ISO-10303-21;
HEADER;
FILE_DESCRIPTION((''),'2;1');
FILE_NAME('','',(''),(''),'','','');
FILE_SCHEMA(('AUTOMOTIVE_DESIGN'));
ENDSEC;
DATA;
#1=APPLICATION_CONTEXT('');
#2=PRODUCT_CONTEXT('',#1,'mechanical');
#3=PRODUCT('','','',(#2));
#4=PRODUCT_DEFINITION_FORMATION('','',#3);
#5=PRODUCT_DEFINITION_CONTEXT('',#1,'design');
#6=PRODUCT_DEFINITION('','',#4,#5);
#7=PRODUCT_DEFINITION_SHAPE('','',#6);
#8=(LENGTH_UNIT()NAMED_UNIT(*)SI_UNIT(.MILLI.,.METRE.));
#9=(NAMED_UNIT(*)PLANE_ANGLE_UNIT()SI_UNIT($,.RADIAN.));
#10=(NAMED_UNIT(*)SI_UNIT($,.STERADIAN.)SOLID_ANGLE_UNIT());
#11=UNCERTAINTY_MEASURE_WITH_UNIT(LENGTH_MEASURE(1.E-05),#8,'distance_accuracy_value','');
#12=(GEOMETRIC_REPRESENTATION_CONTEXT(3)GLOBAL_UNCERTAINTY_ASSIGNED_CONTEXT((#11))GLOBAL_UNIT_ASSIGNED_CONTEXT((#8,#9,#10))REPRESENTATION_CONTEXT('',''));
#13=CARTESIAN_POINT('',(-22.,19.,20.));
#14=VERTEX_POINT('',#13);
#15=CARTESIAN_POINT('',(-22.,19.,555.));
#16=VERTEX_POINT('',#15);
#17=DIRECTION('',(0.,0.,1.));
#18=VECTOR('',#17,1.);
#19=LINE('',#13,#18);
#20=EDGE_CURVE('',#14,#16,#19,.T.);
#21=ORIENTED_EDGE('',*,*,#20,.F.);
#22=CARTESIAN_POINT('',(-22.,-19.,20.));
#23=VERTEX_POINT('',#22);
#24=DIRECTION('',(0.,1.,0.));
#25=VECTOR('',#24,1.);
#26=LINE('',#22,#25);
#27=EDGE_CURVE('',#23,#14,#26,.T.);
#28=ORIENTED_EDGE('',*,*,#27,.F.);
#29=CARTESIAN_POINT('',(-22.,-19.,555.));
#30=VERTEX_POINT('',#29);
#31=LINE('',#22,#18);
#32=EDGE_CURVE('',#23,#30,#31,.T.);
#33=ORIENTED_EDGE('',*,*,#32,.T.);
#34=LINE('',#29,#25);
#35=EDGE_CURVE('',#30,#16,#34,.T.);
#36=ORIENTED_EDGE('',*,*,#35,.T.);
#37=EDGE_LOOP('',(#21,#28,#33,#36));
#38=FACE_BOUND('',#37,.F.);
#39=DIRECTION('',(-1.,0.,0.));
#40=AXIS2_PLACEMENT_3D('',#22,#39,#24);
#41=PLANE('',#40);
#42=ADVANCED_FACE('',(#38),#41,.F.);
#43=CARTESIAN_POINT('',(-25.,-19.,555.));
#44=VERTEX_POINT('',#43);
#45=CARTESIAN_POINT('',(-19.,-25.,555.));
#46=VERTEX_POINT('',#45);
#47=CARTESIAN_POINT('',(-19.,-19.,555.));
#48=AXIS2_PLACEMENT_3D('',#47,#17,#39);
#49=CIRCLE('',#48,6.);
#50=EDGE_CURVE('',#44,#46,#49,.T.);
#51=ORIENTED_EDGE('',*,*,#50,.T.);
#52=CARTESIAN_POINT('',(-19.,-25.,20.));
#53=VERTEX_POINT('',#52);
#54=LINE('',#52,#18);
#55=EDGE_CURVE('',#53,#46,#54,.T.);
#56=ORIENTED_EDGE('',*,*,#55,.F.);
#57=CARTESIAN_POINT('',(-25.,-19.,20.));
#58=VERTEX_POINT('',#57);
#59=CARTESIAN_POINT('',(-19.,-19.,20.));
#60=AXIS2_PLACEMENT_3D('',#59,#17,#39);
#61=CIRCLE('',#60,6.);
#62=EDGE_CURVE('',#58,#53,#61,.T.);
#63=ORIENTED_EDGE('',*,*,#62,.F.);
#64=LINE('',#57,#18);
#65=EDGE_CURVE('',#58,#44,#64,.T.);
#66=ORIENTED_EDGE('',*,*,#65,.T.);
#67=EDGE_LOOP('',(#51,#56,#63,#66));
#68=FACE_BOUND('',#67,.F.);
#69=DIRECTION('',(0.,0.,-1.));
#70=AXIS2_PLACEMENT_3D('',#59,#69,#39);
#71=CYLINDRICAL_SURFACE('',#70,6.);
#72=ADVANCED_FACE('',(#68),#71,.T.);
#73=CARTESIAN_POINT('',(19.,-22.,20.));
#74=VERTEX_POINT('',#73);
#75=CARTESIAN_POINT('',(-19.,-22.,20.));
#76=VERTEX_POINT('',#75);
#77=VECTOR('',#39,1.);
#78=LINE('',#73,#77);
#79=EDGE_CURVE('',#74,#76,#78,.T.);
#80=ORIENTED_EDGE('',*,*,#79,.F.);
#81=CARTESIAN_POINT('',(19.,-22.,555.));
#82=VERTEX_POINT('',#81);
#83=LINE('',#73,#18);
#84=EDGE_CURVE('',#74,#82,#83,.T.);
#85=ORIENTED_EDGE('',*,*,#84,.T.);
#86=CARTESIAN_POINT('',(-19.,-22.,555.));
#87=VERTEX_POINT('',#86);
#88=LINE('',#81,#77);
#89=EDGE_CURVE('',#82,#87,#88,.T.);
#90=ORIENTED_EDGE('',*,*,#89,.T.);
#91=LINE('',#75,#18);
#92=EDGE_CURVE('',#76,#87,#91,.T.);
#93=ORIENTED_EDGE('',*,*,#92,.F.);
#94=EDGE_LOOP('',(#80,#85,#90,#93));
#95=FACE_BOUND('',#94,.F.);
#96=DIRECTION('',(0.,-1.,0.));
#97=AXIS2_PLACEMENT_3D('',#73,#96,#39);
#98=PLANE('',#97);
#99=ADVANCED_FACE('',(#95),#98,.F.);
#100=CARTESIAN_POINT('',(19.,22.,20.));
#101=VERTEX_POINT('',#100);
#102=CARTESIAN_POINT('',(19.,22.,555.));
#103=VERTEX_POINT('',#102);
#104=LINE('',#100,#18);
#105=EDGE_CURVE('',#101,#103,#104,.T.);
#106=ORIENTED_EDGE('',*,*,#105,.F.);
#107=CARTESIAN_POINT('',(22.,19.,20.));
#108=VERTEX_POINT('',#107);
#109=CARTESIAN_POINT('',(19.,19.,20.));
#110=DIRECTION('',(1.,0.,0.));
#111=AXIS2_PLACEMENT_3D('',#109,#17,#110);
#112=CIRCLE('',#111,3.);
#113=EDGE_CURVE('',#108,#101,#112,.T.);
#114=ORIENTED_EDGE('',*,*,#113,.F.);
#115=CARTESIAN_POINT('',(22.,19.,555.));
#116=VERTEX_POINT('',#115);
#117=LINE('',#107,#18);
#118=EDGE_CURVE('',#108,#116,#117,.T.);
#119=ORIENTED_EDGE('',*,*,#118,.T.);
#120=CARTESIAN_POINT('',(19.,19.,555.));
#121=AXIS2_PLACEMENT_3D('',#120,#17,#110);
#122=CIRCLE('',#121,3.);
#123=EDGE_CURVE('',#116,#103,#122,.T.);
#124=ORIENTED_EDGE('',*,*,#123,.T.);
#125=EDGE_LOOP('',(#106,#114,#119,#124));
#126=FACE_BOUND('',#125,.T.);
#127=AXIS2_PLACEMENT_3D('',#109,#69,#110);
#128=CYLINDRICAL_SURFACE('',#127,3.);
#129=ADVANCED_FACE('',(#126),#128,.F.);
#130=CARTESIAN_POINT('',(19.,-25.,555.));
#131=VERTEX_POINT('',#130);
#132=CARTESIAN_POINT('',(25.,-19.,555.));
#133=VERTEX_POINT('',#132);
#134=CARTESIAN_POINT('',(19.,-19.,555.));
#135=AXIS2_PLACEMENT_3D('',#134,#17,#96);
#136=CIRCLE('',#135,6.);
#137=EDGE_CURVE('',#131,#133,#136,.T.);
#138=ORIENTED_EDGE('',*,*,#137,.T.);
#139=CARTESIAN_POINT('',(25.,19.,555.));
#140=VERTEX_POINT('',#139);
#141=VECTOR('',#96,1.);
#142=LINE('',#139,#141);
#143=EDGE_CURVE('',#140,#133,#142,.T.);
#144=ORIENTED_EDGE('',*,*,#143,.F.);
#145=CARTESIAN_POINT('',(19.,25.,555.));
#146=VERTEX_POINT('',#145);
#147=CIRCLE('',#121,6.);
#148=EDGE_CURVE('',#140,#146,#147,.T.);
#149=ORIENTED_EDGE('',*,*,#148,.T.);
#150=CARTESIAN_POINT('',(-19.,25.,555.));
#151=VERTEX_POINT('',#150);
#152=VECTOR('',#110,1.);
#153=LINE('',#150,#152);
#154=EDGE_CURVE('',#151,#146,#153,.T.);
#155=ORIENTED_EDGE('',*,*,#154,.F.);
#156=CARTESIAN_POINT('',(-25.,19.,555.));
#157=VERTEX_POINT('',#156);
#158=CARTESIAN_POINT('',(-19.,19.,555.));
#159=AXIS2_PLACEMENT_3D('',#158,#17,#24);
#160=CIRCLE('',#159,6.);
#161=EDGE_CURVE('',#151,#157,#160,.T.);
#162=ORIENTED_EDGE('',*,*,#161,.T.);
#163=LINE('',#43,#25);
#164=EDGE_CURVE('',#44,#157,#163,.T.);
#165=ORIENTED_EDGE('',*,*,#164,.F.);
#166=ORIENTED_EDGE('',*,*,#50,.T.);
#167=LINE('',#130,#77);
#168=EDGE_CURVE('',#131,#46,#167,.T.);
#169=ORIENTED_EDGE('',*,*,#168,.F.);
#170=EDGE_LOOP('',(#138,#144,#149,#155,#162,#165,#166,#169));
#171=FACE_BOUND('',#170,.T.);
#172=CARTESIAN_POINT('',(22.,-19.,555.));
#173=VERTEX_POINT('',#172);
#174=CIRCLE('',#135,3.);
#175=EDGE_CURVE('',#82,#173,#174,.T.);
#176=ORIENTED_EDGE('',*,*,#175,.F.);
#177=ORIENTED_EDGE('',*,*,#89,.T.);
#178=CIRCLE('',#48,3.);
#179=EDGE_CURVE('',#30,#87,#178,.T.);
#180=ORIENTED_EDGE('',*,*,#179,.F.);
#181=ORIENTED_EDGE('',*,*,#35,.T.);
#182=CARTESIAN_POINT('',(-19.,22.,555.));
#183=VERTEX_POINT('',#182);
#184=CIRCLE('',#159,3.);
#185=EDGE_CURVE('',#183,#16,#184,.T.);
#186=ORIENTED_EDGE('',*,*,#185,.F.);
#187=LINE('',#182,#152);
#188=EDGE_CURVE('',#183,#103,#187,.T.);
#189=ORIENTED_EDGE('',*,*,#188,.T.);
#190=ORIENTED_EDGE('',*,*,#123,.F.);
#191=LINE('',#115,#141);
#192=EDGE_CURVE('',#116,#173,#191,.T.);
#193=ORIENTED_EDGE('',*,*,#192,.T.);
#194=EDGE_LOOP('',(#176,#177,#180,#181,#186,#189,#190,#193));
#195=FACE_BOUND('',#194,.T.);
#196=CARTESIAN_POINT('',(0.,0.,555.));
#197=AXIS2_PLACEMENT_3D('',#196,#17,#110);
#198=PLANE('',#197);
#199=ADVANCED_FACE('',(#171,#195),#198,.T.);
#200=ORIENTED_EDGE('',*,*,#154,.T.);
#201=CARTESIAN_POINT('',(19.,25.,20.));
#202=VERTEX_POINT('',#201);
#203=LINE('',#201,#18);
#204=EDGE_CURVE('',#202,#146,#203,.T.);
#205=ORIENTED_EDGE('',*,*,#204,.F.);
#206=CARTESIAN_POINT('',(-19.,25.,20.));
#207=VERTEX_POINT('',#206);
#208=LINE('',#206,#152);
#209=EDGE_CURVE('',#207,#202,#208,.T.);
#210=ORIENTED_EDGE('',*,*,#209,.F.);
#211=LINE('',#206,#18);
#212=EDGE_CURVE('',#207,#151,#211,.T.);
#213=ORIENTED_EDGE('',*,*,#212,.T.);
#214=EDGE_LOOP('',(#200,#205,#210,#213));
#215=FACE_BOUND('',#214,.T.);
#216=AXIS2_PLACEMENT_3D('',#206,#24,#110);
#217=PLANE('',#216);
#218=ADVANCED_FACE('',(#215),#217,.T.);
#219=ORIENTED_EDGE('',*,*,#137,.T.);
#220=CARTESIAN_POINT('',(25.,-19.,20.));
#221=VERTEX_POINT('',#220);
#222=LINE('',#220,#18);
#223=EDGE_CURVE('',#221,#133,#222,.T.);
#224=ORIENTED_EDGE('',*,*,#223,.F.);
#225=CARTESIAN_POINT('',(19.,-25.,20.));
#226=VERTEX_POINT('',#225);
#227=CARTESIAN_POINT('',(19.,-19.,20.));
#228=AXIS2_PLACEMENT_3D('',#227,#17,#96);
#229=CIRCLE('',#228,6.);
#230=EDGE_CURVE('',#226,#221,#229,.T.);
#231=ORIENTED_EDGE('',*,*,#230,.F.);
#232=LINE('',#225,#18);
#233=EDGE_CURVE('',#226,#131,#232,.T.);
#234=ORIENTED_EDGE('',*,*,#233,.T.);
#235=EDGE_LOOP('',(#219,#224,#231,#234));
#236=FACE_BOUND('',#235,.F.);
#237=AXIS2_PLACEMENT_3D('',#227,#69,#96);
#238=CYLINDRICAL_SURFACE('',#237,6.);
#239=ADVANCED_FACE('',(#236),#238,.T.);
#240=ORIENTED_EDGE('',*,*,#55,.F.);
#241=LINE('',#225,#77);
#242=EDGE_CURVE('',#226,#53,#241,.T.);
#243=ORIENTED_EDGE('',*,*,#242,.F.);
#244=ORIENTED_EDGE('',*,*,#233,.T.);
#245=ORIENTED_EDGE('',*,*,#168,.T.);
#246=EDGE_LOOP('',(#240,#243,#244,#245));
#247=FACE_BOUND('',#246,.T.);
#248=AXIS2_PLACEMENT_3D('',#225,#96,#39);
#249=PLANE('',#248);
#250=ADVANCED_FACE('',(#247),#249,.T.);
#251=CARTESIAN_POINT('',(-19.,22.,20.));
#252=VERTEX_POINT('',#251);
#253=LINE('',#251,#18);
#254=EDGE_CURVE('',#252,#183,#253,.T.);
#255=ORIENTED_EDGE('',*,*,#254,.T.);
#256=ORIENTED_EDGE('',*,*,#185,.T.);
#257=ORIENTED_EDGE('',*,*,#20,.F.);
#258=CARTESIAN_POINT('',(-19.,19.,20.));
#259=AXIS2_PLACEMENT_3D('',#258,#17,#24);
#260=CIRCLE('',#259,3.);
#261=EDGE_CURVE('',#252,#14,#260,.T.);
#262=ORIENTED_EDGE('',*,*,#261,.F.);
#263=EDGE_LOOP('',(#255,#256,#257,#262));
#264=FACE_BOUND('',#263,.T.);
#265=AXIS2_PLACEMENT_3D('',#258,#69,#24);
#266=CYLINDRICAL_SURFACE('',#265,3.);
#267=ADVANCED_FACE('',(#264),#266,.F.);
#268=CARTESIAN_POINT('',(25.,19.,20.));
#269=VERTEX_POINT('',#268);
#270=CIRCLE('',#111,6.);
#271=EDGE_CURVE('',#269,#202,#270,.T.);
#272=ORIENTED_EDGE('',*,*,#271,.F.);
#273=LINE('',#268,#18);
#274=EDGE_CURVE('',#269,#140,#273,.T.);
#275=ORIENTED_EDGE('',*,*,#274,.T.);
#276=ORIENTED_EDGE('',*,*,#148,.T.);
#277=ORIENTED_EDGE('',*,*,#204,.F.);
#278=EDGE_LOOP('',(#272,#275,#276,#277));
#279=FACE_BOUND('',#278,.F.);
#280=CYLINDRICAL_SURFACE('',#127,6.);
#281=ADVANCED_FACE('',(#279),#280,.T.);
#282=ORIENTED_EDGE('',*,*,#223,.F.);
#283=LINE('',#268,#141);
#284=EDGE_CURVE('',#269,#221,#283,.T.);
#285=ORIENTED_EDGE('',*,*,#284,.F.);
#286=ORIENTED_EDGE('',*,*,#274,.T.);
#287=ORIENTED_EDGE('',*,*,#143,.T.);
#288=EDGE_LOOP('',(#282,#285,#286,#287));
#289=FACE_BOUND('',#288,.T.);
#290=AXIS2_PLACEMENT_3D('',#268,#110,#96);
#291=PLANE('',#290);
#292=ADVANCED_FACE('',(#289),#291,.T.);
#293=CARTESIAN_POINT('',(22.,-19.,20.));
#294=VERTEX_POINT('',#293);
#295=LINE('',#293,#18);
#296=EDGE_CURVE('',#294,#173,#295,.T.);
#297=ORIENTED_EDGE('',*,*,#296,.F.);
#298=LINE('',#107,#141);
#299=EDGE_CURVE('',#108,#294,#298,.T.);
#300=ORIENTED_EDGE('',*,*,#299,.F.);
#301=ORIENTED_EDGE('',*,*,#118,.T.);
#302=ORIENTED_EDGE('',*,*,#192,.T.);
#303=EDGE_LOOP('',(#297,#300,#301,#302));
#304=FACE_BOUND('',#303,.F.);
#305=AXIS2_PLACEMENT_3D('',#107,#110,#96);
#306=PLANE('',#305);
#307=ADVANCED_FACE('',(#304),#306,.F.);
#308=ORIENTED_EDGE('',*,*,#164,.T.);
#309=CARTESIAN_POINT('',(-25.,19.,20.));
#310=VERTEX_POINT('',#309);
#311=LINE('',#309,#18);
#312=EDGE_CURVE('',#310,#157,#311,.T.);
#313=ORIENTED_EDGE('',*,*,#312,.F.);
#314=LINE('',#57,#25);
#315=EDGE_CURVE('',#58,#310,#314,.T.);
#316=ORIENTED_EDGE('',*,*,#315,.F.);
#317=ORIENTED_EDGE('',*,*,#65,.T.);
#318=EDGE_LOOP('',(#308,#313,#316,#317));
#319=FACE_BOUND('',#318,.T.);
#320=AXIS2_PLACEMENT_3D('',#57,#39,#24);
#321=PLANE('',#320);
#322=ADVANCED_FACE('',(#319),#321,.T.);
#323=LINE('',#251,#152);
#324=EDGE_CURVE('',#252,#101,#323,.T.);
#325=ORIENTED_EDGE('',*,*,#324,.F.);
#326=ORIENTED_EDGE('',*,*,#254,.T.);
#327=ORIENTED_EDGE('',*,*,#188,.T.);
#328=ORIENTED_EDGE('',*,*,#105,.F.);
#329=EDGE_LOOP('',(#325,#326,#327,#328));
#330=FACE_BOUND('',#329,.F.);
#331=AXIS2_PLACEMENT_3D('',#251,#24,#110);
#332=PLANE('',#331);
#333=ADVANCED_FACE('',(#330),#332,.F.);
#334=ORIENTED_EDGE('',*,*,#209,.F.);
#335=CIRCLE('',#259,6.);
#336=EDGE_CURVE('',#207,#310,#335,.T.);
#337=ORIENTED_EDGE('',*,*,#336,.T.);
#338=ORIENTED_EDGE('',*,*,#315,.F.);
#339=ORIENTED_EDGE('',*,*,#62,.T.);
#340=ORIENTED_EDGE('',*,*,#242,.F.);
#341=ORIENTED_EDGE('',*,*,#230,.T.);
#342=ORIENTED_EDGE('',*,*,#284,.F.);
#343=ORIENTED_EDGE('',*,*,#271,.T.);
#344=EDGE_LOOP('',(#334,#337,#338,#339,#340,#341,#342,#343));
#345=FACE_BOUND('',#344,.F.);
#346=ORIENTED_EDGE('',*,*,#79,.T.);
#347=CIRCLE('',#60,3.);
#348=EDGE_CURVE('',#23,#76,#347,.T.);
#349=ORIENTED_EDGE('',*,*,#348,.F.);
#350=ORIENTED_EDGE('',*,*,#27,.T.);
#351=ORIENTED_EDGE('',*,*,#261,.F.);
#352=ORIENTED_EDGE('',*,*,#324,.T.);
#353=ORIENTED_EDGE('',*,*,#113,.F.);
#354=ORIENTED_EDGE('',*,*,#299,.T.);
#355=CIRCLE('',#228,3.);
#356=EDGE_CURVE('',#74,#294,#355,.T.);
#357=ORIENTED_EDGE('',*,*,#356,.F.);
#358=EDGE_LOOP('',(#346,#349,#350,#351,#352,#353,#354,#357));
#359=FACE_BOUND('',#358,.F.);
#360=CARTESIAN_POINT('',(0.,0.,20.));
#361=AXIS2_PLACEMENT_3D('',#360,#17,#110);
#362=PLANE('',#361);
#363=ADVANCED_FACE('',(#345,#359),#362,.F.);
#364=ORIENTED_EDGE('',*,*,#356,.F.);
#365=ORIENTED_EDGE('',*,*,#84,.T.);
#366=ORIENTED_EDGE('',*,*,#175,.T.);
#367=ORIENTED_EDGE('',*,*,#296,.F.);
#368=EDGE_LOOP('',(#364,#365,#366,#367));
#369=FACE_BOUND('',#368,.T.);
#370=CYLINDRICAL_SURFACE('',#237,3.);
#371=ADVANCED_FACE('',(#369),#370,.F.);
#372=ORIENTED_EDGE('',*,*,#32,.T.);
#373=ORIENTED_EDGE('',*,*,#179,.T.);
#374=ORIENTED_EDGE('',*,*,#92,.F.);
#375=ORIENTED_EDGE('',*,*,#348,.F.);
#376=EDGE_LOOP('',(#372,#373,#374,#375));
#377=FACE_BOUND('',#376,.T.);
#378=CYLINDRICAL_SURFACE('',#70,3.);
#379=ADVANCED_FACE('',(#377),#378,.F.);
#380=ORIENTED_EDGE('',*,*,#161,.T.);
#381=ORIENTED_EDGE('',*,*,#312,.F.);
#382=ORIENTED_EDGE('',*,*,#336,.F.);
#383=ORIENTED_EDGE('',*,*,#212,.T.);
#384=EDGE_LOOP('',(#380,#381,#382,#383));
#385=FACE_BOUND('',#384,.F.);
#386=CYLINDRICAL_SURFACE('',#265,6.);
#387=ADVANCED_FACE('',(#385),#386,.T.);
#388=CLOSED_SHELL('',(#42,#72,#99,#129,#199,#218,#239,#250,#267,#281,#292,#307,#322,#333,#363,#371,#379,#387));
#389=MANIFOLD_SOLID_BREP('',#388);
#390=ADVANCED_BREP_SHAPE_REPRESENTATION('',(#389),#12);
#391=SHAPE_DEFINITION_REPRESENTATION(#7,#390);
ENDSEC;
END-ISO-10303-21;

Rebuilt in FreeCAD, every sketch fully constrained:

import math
import FreeCAD as App
import Part
import Sketcher

doc = App.newDocument("Part")
params = doc.addObject("Spreadsheet::Sheet", "Params")
for row, (alias, value) in enumerate([
    ("sketch1_radius", "6 mm"),
    ("sketch1_radius2", "3 mm"),
    ("pad1_length", "535 mm"),
], start=1):
    params.set(f"A{row}", alias)
    params.set(f"B{row}", "=" + value)
    params.setAlias(f"B{row}", alias)

body = doc.addObject("PartDesign::Body", "Body")

# Sketch on XY plane
sketch1 = body.newObject("Sketcher::SketchObject", "Sketch")
sketch1.AttachmentSupport = (doc.getObject("XY_Plane"), [""])
sketch1.MapMode = "FlatFace"
sketch1.AttachmentOffset = App.Placement(App.Vector(0, 0, 20), App.Rotation())
sketch1.addGeometry([
    Part.LineSegment(App.Vector(-25, 19, 0), App.Vector(-25, -19, 0)),  # 0
    Part.ArcOfCircle(Part.Circle(App.Vector(-19, -19, 0), App.Vector(0, 0, 1), 6), math.radians(180), math.radians(270)),  # 1
    Part.LineSegment(App.Vector(-19, -25, 0), App.Vector(19, -25, 0)),  # 2
    Part.ArcOfCircle(Part.Circle(App.Vector(19, -19, 0), App.Vector(0, 0, 1), 6), math.radians(-90), math.radians(0)),  # 3
    Part.LineSegment(App.Vector(25, -19, 0), App.Vector(25, 19, 0)),  # 4
    Part.ArcOfCircle(Part.Circle(App.Vector(19, 19, 0), App.Vector(0, 0, 1), 6), math.radians(0), math.radians(90)),  # 5
    Part.LineSegment(App.Vector(19, 25, 0), App.Vector(-19, 25, 0)),  # 6
    Part.ArcOfCircle(Part.Circle(App.Vector(-19, 19, 0), App.Vector(0, 0, 1), 6), math.radians(90), math.radians(180)),  # 7
    Part.ArcOfCircle(Part.Circle(App.Vector(-19, 19, 0), App.Vector(0, 0, 1), 3), math.radians(90), math.radians(180)),  # 8
    Part.LineSegment(App.Vector(-19, 22, 0), App.Vector(19, 22, 0)),  # 9
    Part.ArcOfCircle(Part.Circle(App.Vector(19, 19, 0), App.Vector(0, 0, 1), 3), math.radians(0), math.radians(90)),  # 10
    Part.LineSegment(App.Vector(22, 19, 0), App.Vector(22, -19, 0)),  # 11
    Part.ArcOfCircle(Part.Circle(App.Vector(19, -19, 0), App.Vector(0, 0, 1), 3), math.radians(-90), math.radians(0)),  # 12
    Part.LineSegment(App.Vector(19, -22, 0), App.Vector(-19, -22, 0)),  # 13
    Part.ArcOfCircle(Part.Circle(App.Vector(-19, -19, 0), App.Vector(0, 0, 1), 3), math.radians(180), math.radians(270)),  # 14
    Part.LineSegment(App.Vector(-22, -19, 0), App.Vector(-22, 19, 0)),  # 15
], False)
sketch1.addConstraint([
    Sketcher.Constraint("Tangent", 0, 2, 1, 1),
    Sketcher.Constraint("Tangent", 1, 2, 2, 1),
    Sketcher.Constraint("Tangent", 2, 2, 3, 1),
    Sketcher.Constraint("Tangent", 3, 2, 4, 1),
    Sketcher.Constraint("Tangent", 4, 2, 5, 1),
    Sketcher.Constraint("Tangent", 5, 2, 6, 1),
    Sketcher.Constraint("Tangent", 6, 2, 7, 1),
    Sketcher.Constraint("Tangent", 7, 2, 0, 1),
    Sketcher.Constraint("Tangent", 8, 1, 9, 1),
    Sketcher.Constraint("Tangent", 9, 2, 10, 2),
    Sketcher.Constraint("Tangent", 10, 1, 11, 1),
    Sketcher.Constraint("Tangent", 11, 2, 12, 2),
    Sketcher.Constraint("Tangent", 12, 1, 13, 1),
    Sketcher.Constraint("Tangent", 13, 2, 14, 2),
    Sketcher.Constraint("Tangent", 14, 1, 15, 1),
    Sketcher.Constraint("Tangent", 15, 2, 8, 2),
    Sketcher.Constraint("Vertical", 0),
    Sketcher.Constraint("Horizontal", 2),
    Sketcher.Constraint("Vertical", 4),
    Sketcher.Constraint("Horizontal", 6),
    Sketcher.Constraint("Horizontal", 9),
    Sketcher.Constraint("Vertical", 11),
    Sketcher.Constraint("Horizontal", 13),
    Sketcher.Constraint("Vertical", 15),
    Sketcher.Constraint("Coincident", 8, 3, 7, 3),
    Sketcher.Constraint("Coincident", 10, 3, 5, 3),
    Sketcher.Constraint("Coincident", 12, 3, 3, 3),
    Sketcher.Constraint("Equal", 1, 3),
    Sketcher.Constraint("Equal", 3, 5),
    Sketcher.Constraint("Equal", 5, 7),
    Sketcher.Constraint("Equal", 12, 14),
    Sketcher.Constraint("Symmetric", 1, 3, 5, 3, -1, 1),
    Sketcher.Constraint("Equal", 13, 0),
    Sketcher.Constraint("Radius", 1, 6.0),
    Sketcher.Constraint("Radius", 8, 3.0),
    Sketcher.Constraint("DistanceX", 0, 2, -1, 1, 25.0),
])
sketch1.setExpression("Constraints[33]", "Params.sketch1_radius")
sketch1.setExpression("Constraints[34]", "Params.sketch1_radius2")
pad1 = body.newObject("PartDesign::Pad", "Pad")
pad1.Profile = sketch1
pad1.setExpression("Length", "Params.pad1_length")

doc.recompute()
